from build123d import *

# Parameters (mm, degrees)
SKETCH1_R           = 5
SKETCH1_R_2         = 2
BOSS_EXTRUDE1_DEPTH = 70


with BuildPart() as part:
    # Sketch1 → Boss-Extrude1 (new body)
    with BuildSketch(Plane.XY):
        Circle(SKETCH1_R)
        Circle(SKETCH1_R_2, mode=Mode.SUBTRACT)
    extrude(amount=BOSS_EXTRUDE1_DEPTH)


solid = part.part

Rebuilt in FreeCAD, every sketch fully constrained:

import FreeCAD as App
import Part
import Sketcher
from FreeCAD import Vector

doc = App.newDocument("Part")
body = doc.addObject("PartDesign::Body", "Body")

# Sketch on XY plane
sketch1 = body.newObject("Sketcher::SketchObject", "Sketch")
sketch1.AttachmentSupport = (doc.getObject("XY_Plane"), [""])
sketch1.MapMode = "FlatFace"
sketch1.addGeometry([
    Part.Circle(Vector(0, 0, 0), Vector(0, 0, 1), 5),
    Part.Circle(Vector(0, 0, 0), Vector(0, 0, 1), 2),
], False)
sketch1.addConstraint([
    Sketcher.Constraint("Coincident", 0, 3, -1, 1),
    Sketcher.Constraint("Coincident", 1, 3, -1, 1),
    Sketcher.Constraint("Diameter", 0, 10.0),
    Sketcher.Constraint("Diameter", 1, 4.0),
])
pad1 = body.newObject("PartDesign::Pad", "Pad")
pad1.Profile = sketch1
pad1.Length = 70

doc.recompute()
